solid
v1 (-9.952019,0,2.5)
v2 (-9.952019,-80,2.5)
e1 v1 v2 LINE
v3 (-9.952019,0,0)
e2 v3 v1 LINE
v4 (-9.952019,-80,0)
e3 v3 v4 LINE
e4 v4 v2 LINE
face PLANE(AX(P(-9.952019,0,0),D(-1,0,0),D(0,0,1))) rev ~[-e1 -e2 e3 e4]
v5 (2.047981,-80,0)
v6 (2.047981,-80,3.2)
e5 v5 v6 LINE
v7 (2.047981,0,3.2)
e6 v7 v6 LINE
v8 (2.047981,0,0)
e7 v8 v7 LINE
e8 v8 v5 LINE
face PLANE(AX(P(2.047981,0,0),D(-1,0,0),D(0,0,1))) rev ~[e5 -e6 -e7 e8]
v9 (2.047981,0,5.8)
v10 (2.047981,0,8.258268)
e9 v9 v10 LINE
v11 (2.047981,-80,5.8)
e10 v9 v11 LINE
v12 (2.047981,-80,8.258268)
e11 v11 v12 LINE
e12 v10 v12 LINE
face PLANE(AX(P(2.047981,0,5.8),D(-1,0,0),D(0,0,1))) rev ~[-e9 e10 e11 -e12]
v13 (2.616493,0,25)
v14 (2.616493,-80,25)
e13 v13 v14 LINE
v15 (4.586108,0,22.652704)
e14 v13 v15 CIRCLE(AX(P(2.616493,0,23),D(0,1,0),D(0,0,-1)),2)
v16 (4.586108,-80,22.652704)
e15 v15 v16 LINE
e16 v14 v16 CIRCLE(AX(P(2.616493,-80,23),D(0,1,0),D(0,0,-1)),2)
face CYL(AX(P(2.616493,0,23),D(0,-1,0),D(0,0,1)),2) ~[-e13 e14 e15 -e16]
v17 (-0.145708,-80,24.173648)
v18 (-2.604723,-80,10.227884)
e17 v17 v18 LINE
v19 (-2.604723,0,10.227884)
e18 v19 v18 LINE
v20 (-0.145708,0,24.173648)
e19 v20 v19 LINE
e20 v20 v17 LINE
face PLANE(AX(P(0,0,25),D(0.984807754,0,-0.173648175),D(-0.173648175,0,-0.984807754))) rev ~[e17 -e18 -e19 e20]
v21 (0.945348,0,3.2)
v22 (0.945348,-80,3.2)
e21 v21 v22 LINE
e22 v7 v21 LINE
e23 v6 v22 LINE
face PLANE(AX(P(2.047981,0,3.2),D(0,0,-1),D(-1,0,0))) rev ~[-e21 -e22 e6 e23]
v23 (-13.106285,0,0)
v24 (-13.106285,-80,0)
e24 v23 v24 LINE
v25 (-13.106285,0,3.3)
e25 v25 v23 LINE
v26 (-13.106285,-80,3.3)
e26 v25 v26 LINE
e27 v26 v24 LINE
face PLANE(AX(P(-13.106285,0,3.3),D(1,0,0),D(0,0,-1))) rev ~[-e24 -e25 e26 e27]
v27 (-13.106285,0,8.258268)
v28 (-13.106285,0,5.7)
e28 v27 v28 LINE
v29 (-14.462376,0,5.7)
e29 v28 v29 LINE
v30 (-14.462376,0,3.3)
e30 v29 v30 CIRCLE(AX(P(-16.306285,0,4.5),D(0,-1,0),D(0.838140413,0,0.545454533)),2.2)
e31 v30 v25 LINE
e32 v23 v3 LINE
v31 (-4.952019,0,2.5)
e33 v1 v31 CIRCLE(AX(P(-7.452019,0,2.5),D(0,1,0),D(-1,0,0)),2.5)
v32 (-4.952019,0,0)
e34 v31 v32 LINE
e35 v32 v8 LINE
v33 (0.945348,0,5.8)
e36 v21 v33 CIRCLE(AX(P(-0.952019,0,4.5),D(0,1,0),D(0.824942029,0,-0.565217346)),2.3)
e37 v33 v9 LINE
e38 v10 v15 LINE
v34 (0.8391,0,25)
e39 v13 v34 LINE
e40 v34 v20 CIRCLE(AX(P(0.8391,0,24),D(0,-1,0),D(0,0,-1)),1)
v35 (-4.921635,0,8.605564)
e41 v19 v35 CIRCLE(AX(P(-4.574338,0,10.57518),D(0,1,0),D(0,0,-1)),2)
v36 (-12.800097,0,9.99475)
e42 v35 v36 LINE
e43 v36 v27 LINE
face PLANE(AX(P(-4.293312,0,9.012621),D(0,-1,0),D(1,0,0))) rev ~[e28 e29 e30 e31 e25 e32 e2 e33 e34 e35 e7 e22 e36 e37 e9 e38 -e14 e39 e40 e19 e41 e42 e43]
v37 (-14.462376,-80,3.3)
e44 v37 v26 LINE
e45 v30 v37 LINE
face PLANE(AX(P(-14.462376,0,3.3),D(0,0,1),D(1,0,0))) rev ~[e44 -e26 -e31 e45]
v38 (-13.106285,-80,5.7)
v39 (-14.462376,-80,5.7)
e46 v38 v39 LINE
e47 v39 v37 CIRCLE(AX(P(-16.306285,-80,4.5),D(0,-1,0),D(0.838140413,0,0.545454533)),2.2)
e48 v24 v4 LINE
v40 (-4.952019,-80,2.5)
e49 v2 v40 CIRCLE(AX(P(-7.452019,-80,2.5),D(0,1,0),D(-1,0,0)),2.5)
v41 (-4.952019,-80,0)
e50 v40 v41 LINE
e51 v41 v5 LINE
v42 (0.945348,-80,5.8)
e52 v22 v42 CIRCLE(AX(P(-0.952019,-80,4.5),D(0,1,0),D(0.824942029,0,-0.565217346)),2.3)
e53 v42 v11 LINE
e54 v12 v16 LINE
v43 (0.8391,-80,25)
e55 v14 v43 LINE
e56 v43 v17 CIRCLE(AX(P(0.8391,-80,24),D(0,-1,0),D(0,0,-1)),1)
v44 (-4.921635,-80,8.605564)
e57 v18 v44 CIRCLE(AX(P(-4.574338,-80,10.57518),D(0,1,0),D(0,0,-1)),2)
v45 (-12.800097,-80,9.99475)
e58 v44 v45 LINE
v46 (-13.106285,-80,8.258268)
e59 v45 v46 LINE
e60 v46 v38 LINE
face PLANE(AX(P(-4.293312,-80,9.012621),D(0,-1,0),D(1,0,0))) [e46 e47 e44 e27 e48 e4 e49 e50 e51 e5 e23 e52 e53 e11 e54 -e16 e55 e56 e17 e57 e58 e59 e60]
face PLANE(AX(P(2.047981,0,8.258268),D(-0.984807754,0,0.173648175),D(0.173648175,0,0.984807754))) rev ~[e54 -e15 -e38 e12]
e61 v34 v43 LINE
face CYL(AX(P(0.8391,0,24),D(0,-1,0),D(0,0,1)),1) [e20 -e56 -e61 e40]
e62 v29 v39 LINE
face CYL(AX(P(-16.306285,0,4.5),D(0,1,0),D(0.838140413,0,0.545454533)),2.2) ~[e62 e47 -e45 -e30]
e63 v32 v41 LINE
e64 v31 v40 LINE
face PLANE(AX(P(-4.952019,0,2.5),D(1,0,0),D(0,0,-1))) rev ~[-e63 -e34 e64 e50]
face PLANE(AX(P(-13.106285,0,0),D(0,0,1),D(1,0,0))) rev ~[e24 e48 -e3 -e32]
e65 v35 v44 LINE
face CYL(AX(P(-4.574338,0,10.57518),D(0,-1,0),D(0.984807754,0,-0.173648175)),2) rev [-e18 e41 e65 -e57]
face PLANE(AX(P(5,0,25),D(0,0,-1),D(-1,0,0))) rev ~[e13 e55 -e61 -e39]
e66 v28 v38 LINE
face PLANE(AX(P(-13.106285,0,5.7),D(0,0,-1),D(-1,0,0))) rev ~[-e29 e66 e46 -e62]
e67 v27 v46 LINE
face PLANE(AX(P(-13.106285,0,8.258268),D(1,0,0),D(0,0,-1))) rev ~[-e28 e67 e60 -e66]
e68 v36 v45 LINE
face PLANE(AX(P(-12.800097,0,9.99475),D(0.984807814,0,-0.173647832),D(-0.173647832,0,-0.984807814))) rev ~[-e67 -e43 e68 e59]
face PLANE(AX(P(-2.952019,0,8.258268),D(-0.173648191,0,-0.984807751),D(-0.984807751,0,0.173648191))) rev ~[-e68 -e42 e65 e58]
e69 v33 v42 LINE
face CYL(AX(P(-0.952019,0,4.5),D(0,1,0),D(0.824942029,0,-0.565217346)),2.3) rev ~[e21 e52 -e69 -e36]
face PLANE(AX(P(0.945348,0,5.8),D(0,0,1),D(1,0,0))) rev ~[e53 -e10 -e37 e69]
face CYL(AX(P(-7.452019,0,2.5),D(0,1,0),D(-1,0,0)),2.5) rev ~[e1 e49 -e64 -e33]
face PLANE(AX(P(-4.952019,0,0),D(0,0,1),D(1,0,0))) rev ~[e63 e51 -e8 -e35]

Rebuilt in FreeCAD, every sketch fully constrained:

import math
import FreeCAD as App
import Part
import Sketcher

V = App.Vector
Q = App.Units.Quantity


def edges_at(feature, points):
    """Names of the edges that pass closest to the given points."""
    edges = feature.Shape.Edges
    near = lambda p: min(range(len(edges)), key=lambda i: edges[i].distToShape(Part.Vertex(*p))[0])
    return sorted({f"Edge{near(p) + 1}" for p in points})

doc = App.newDocument("Part")
body = doc.addObject("PartDesign::Body", "Body")

# Sketch on XZ plane
sketch1 = doc.addObject("Sketcher::SketchObject", "Sketch")
body.addObject(sketch1)
sketch1.AttachmentSupport = (doc.XZ_Plane, [""])
sketch1.MapMode = "FlatFace"
sketch1.addGeometry([
    Part.LineSegment(V(5, 25, 0), V(0, 25, 0)),  # 0
    Part.LineSegment(V(0, 25, 0), V(-2.952019, 8.258268, 0)),  # 1
    Part.LineSegment(V(-2.952019, 8.258268, 0), V(-12.800097, 9.99475, 0)),  # 2
    Part.LineSegment(V(-12.800097, 9.99475, 0), V(-13.106285, 8.258268, 0)),  # 3
    Part.LineSegment(V(-13.106285, 8.258268, 0), V(-13.106285, 5.7, 0)),  # 4
    Part.LineSegment(V(-13.106285, 5.7, 0), V(-14.462376, 5.7, 0)),  # 5
    Part.ArcOfCircle(Part.Circle(V(-16.306285, 4.5, 0), V(0, 0, 1), 2.2), math.radians(33.05573), math.radians(326.94427)),  # 6
    Part.LineSegment(V(-14.462376, 3.3, 0), V(-13.106285, 3.3, 0)),  # 7
    Part.LineSegment(V(-13.106285, 3.3, 0), V(-13.106285, 0, 0)),  # 8
    Part.LineSegment(V(-13.106285, 0, 0), V(-9.952019, 0, 0)),  # 9
    Part.LineSegment(V(-9.952019, 0, 0), V(-9.952019, 2.5, 0)),  # 10
    Part.ArcOfCircle(Part.Circle(V(-7.452019, 2.5, 0), V(0, 0, 1), 2.5), math.radians(0), math.radians(180)),  # 11
    Part.LineSegment(V(-4.952019, 2.5, 0), V(-4.952019, 0, 0)),  # 12
    Part.LineSegment(V(-4.952019, 0, 0), V(2.047981, 0, 0)),  # 13
    Part.LineSegment(V(2.047981, 0, 0), V(2.047981, 3.2, 0)),  # 14
    Part.LineSegment(V(2.047981, 3.2, 0), V(0.945348, 3.2, 0)),  # 15
    Part.ArcOfCircle(Part.Circle(V(-0.952019, 4.5, 0), V(0, 0, 1), 2.3), math.radians(34.417386), math.radians(325.582614)),  # 16
    Part.LineSegment(V(0.945348, 5.8, 0), V(2.047981, 5.8, 0)),  # 17
    Part.LineSegment(V(2.047981, 5.8, 0), V(2.047981, 8.258268, 0)),  # 18
    Part.LineSegment(V(2.047981, 8.258268, 0), V(5, 25, 0)),  # 19
], False)
sketch1.addConstraint([
    Sketcher.Constraint("Coincident", 0, 2, 1, 1),
    Sketcher.Constraint("Coincident", 1, 2, 2, 1),
    Sketcher.Constraint("Coincident", 2, 2, 3, 1),
    Sketcher.Constraint("Coincident", 3, 2, 4, 1),
    Sketcher.Constraint("Coincident", 4, 2, 5, 1),
    Sketcher.Constraint("Coincident", 5, 2, 6, 1),
    Sketcher.Constraint("Coincident", 6, 2, 7, 1),
    Sketcher.Constraint("Coincident", 7, 2, 8, 1),
    Sketcher.Constraint("Coincident", 8, 2, 9, 1),
    Sketcher.Constraint("Coincident", 9, 2, 10, 1),
    Sketcher.Constraint("Tangent", 10, 2, 11, 2),
    Sketcher.Constraint("Tangent", 11, 1, 12, 1),
    Sketcher.Constraint("Coincident", 12, 2, 13, 1),
    Sketcher.Constraint("Coincident", 13, 2, 14, 1),
    Sketcher.Constraint("Coincident", 14, 2, 15, 1),
    Sketcher.Constraint("Coincident", 15, 2, 16, 2),
    Sketcher.Constraint("Coincident", 16, 1, 17, 1),
    Sketcher.Constraint("Coincident", 17, 2, 18, 1),
    Sketcher.Constraint("Coincident", 18, 2, 19, 1),
    Sketcher.Constraint("Coincident", 19, 2, 0, 1),
    Sketcher.Constraint("Horizontal", 0),
    Sketcher.Constraint("Vertical", 4),
    Sketcher.Constraint("Horizontal", 5),
    Sketcher.Constraint("Horizontal", 7),
    Sketcher.Constraint("Vertical", 8),
    Sketcher.Constraint("Horizontal", 9),
    Sketcher.Constraint("Vertical", 10),
    Sketcher.Constraint("Vertical", 12),
    Sketcher.Constraint("Horizontal", 13),
    Sketcher.Constraint("Vertical", 14),
    Sketcher.Constraint("Horizontal", 15),
    Sketcher.Constraint("Horizontal", 17),
    Sketcher.Constraint("Vertical", 18),
    Sketcher.Constraint("PointOnObject", 0, 2, -2),
    Sketcher.Constraint("PointOnObject", 8, 2, -1),
    Sketcher.Constraint("PointOnObject", 12, 2, -1),
    Sketcher.Constraint("Perpendicular", 1, 2),
    Sketcher.Constraint("Perpendicular", 2, 3),
    Sketcher.Constraint("Parallel", 3, 19),
    Sketcher.Constraint("Horizontal", 6, 3, 16, 3),
    Sketcher.Constraint("Horizontal", 1, 2, 3, 2),
    Sketcher.Constraint("Horizontal", 3, 2, 18, 2),
    Sketcher.Constraint("Vertical", 5, 2, 6, 2),
    Sketcher.Constraint("Vertical", 4, 2, 7, 2),
    Sketcher.Constraint("Vertical", 15, 2, 16, 1),
    Sketcher.Constraint("Vertical", 14, 2, 17, 2),
    Sketcher.Constraint("Radius", 6, Q("2.2 mm")),
    Sketcher.Constraint("Radius", 11, Q("2.5 mm")),
    Sketcher.Constraint("Radius", 16, Q("2.3 mm")),
    Sketcher.Constraint("DistanceX", 0, 2, 0, 1, Q("5 mm")),
    Sketcher.Constraint("DistanceX", 13, 1, 13, 2, Q("7 mm")),
    Sketcher.Constraint("Angle", 1, Q("-100 deg")),
    Sketcher.Constraint("Distance", 1, Q("17 mm")),
    Sketcher.Constraint("Distance", 2, Q("10.000001 mm")),
    Sketcher.Constraint("DistanceY", 8, 2, 8, 1, Q("3.3 mm")),
    Sketcher.Constraint("DistanceY", 10, 1, 10, 2, Q("2.5 mm")),
    Sketcher.Constraint("DistanceY", 14, 1, 14, 2, Q("3.2 mm")),
    Sketcher.Constraint("DistanceY", -1, 1, 0, 2, Q("25 mm")),
    Sketcher.Constraint("DistanceY", 11, 3, 6, 3, Q("2 mm")),
    Sketcher.Constraint("DistanceX", 1, 2, 16, 3, Q("2 mm")),
    Sketcher.Constraint("DistanceX", 6, 3, 3, 2, Q("3.2 mm")),
])
pad1 = doc.addObject("PartDesign::Pad", "Pad")
body.addObject(pad1)
pad1.Profile = sketch1
pad1.Length = 80
doc.recompute()

fillet = doc.addObject("PartDesign::Fillet", "Fillet")
body.addObject(fillet)
fillet.Base = (pad1, edges_at(pad1, [(5, -40, 25), (-2.952, -40, 8.258)]))
fillet.Radius = 2
doc.recompute()

fillet2 = doc.addObject("PartDesign::Fillet", "Fillet001")
body.addObject(fillet2)
fillet2.Base = (fillet, edges_at(fillet, [(0, -40, 25)]))
fillet2.Radius = 1

doc.recompute()
